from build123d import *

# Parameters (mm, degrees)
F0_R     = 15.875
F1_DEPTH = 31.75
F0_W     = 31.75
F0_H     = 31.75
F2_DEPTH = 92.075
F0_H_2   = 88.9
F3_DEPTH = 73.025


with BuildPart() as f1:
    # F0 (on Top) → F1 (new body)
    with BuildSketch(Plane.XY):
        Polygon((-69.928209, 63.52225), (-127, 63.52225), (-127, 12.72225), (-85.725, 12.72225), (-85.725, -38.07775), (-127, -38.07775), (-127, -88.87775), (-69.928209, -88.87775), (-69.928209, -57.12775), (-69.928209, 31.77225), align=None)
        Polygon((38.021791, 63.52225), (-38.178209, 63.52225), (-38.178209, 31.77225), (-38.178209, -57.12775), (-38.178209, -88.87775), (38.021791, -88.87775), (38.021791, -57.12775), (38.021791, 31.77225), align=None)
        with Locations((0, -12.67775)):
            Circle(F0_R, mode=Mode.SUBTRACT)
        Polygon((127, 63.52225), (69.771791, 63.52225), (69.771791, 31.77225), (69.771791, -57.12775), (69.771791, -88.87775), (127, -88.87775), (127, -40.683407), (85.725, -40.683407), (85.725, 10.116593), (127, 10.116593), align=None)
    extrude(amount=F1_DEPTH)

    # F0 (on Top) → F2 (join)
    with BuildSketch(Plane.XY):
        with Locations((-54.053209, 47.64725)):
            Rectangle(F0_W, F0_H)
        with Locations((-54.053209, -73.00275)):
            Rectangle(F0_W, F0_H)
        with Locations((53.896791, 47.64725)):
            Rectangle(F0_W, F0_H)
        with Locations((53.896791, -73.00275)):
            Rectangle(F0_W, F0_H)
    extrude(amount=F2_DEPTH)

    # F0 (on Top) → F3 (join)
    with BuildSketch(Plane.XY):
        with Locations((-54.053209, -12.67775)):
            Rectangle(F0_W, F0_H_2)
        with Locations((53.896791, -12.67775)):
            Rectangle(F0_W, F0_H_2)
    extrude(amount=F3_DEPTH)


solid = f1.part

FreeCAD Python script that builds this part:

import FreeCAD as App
import Part
import Sketcher
Q = App.Units.Quantity


def add_polygon(sketch, points):
    """Adds a closed chain of lines whose ends are joined by coincident constraints."""
    first, n = sketch.GeometryCount, len(points)
    for a, b in zip(points, points[1:] + points[:1]):
        sketch.addGeometry(Part.LineSegment(App.Vector(*a, 0), App.Vector(*b, 0)), False)
    for i in range(n):
        sketch.addConstraint(Sketcher.Constraint("Coincident", first + i, 2, first + (i + 1) % n, 1))

doc = App.newDocument("Part")
body = doc.addObject("PartDesign::Body", "Body")
body.AllowCompound = True

sketch1 = doc.addObject("Sketcher::SketchObject", "Sketch")
body.addObject(sketch1)
sketch1.AttachmentSupport = (doc.XY_Plane, [""])
sketch1.MapMode = "FlatFace"
add_polygon(sketch1, [(-70, 64), (-127, 64), (-127, 13), (-86, 13), (-86, -38), (-127, -38), (-127, -89), (-70, -89)])
add_polygon(sketch1, [(38, 64), (-38, 64), (-38, -89), (38, -89)])
sketch1.addGeometry(Part.Circle(App.Vector(0, -13, 0), App.Vector(0, 0, 1), 16), False)
add_polygon(sketch1, [(127, 64), (70, 64), (70, -89), (127, -89), (127, -41), (86, -41), (86, 10), (127, 10)])
sketch1.addConstraint([
    Sketcher.Constraint("Horizontal", 0),
    Sketcher.Constraint("Vertical", 1),
    Sketcher.Constraint("Horizontal", 2),
    Sketcher.Constraint("Vertical", 3),
    Sketcher.Constraint("Horizontal", 4),
    Sketcher.Constraint("Vertical", 5),
    Sketcher.Constraint("Horizontal", 6),
    Sketcher.Constraint("Vertical", 7),
    Sketcher.Constraint("Horizontal", 8),
    Sketcher.Constraint("Vertical", 9),
    Sketcher.Constraint("Horizontal", 10),
    Sketcher.Constraint("Vertical", 11),
    Sketcher.Constraint("Horizontal", 13),
    Sketcher.Constraint("Vertical", 14),
    Sketcher.Constraint("Horizontal", 15),
    Sketcher.Constraint("Vertical", 16),
    Sketcher.Constraint("Horizontal", 17),
    Sketcher.Constraint("Vertical", 18),
    Sketcher.Constraint("Horizontal", 19),
    Sketcher.Constraint("Vertical", 20),
    Sketcher.Constraint("Symmetric", 5, 2, 15, 2, -2),
    Sketcher.Constraint("Symmetric", 0, 2, 20, 2, -2),
    Sketcher.Constraint("PointOnObject", 12, 3, -2),
    Sketcher.Constraint("Horizontal", 7, 2, 8, 2),
    Sketcher.Constraint("Horizontal", 6, 2, 9, 2),
    Sketcher.Constraint("Vertical", 1, 2, 4, 2),
    Sketcher.Constraint("Equal", 4, 17),
    Sketcher.Constraint("Equal", 1, 3),
    Sketcher.Constraint("Equal", 3, 5),
    Sketcher.Constraint("Equal", 5, 18),
    Sketcher.Constraint("Diameter", 12, Q("1.25 in")),
    Sketcher.Constraint("DistanceX", 8, 2, 8, 1, Q("3 in")),
    Sketcher.Constraint("DistanceY", 1, 2, 1, 1, Q("2 in")),
    Sketcher.Constraint("DistanceX", 0, 2, -1, 1, Q("5 in")),
    Sketcher.Constraint("DistanceY", 12, 3, 0, 2, Q("3 in")),
    Sketcher.Constraint("DistanceX", 7, 2, 13, 2, Q("5.5 in")),
    Sketcher.Constraint("DistanceX", 2, 1, 2, 2, Q("1.625 in")),
    Sketcher.Constraint("DistanceX", 7, 2, 8, 2, Q("1.25 in")),
    Sketcher.Constraint("DistanceX", 0, 2, 0, 1, 57.071791),
    Sketcher.Constraint("DistanceY", 16, 1, 16, 2, 48.194343),
    Sketcher.Constraint("DistanceY", 12, 3, -1, 1, 12.67775),
])
pad1 = doc.addObject("PartDesign::Pad", "Pad")
body.addObject(pad1)
pad1.Profile = sketch1
pad1.Length = Q("1.25 in")

sketch2 = doc.addObject("Sketcher::SketchObject", "Sketch001")
body.addObject(sketch2)
sketch2.AttachmentSupport = (doc.XY_Plane, [""])
sketch2.MapMode = "FlatFace"
add_polygon(sketch2, [(-70, 64), (-70, 32), (-38, 32), (-38, 64)])
add_polygon(sketch2, [(-70, -57), (-70, -89), (-38, -89), (-38, -57)])
add_polygon(sketch2, [(38, 64), (38, 32), (70, 32), (70, 64)])
add_polygon(sketch2, [(38, -57), (38, -89), (70, -89), (70, -57)])
sketch2.addConstraint([
    Sketcher.Constraint("Vertical", 0),
    Sketcher.Constraint("Horizontal", 1),
    Sketcher.Constraint("Vertical", 2),
    Sketcher.Constraint("Horizontal", 3),
    Sketcher.Constraint("Vertical", 4),
    Sketcher.Constraint("Horizontal", 5),
    Sketcher.Constraint("Vertical", 6),
    Sketcher.Constraint("Horizontal", 7),
    Sketcher.Constraint("Vertical", 8),
    Sketcher.Constraint("Horizontal", 9),
    Sketcher.Constraint("Vertical", 10),
    Sketcher.Constraint("Horizontal", 11),
    Sketcher.Constraint("Vertical", 12),
    Sketcher.Constraint("Horizontal", 13),
    Sketcher.Constraint("Vertical", 14),
    Sketcher.Constraint("Horizontal", 15),
    Sketcher.Constraint("Horizontal", 1, 2, 8, 2),
    Sketcher.Constraint("Horizontal", 3, 2, 10, 2),
    Sketcher.Constraint("Horizontal", 5, 2, 12, 2),
    Sketcher.Constraint("Horizontal", 7, 2, 14, 2),
    Sketcher.Constraint("Vertical", 3, 2, 4, 2),
    Sketcher.Constraint("Vertical", 2, 2, 5, 2),
    Sketcher.Constraint("Vertical", 11, 2, 12, 2),
    Sketcher.Constraint("Vertical", 10, 2, 13, 2),
    Sketcher.Constraint("Equal", 7, 9),
    Sketcher.Constraint("Equal", 15, 0),
    Sketcher.Constraint("Equal", 2, 4),
    Sketcher.Constraint("DistanceY", 4, 2, 3, 2, Q("6 in")),
    Sketcher.Constraint("DistanceX", 1, 2, 8, 2, Q("3 in")),
    Sketcher.Constraint("DistanceX", 1, 1, 1, 2, Q("1.25 in")),
    Sketcher.Constraint("DistanceX", 0, 2, -1, 1, 69.928209),
    Sketcher.Constraint("DistanceY", -1, 1, 0, 2, 31.77225),
])
pad2 = doc.addObject("PartDesign::Pad", "Pad001")
body.addObject(pad2)
pad2.Profile = sketch2
pad2.Length = Q("3.625 in")

sketch3 = doc.addObject("Sketcher::SketchObject", "Sketch002")
body.addObject(sketch3)
sketch3.AttachmentSupport = (doc.XY_Plane, [""])
sketch3.MapMode = "FlatFace"
add_polygon(sketch3, [(-70, 32), (-70, -57), (-38, -57), (-38, 32)])
add_polygon(sketch3, [(38, 32), (38, -57), (70, -57), (70, 32)])
sketch3.addConstraint([
    Sketcher.Constraint("Vertical", 0),
    Sketcher.Constraint("Horizontal", 1),
    Sketcher.Constraint("Vertical", 2),
    Sketcher.Constraint("Horizontal", 3),
    Sketcher.Constraint("Vertical", 4),
    Sketcher.Constraint("Horizontal", 5),
    Sketcher.Constraint("Vertical", 6),
    Sketcher.Constraint("Horizontal", 7),
    Sketcher.Constraint("Horizontal", 1, 2, 4, 2),
    Sketcher.Constraint("Horizontal", 3, 2, 6, 2),
    Sketcher.Constraint("Equal", 3, 5),
    Sketcher.Constraint("DistanceY", 0, 2, 0, 1, Q("3.5 in")),
    Sketcher.Constraint("DistanceX", 1, 2, 4, 2, Q("3 in")),
    Sketcher.Constraint("DistanceX", 1, 1, 1, 2, Q("1.25 in")),
    Sketcher.Constraint("DistanceX", 0, 2, -1, 1, 69.928209),
    Sketcher.Constraint("DistanceY", 0, 2, -1, 1, 57.12775),
])
pad3 = doc.addObject("PartDesign::Pad", "Pad002")
body.addObject(pad3)
pad3.Profile = sketch3
pad3.Length = Q("2.875 in")

doc.recompute()
